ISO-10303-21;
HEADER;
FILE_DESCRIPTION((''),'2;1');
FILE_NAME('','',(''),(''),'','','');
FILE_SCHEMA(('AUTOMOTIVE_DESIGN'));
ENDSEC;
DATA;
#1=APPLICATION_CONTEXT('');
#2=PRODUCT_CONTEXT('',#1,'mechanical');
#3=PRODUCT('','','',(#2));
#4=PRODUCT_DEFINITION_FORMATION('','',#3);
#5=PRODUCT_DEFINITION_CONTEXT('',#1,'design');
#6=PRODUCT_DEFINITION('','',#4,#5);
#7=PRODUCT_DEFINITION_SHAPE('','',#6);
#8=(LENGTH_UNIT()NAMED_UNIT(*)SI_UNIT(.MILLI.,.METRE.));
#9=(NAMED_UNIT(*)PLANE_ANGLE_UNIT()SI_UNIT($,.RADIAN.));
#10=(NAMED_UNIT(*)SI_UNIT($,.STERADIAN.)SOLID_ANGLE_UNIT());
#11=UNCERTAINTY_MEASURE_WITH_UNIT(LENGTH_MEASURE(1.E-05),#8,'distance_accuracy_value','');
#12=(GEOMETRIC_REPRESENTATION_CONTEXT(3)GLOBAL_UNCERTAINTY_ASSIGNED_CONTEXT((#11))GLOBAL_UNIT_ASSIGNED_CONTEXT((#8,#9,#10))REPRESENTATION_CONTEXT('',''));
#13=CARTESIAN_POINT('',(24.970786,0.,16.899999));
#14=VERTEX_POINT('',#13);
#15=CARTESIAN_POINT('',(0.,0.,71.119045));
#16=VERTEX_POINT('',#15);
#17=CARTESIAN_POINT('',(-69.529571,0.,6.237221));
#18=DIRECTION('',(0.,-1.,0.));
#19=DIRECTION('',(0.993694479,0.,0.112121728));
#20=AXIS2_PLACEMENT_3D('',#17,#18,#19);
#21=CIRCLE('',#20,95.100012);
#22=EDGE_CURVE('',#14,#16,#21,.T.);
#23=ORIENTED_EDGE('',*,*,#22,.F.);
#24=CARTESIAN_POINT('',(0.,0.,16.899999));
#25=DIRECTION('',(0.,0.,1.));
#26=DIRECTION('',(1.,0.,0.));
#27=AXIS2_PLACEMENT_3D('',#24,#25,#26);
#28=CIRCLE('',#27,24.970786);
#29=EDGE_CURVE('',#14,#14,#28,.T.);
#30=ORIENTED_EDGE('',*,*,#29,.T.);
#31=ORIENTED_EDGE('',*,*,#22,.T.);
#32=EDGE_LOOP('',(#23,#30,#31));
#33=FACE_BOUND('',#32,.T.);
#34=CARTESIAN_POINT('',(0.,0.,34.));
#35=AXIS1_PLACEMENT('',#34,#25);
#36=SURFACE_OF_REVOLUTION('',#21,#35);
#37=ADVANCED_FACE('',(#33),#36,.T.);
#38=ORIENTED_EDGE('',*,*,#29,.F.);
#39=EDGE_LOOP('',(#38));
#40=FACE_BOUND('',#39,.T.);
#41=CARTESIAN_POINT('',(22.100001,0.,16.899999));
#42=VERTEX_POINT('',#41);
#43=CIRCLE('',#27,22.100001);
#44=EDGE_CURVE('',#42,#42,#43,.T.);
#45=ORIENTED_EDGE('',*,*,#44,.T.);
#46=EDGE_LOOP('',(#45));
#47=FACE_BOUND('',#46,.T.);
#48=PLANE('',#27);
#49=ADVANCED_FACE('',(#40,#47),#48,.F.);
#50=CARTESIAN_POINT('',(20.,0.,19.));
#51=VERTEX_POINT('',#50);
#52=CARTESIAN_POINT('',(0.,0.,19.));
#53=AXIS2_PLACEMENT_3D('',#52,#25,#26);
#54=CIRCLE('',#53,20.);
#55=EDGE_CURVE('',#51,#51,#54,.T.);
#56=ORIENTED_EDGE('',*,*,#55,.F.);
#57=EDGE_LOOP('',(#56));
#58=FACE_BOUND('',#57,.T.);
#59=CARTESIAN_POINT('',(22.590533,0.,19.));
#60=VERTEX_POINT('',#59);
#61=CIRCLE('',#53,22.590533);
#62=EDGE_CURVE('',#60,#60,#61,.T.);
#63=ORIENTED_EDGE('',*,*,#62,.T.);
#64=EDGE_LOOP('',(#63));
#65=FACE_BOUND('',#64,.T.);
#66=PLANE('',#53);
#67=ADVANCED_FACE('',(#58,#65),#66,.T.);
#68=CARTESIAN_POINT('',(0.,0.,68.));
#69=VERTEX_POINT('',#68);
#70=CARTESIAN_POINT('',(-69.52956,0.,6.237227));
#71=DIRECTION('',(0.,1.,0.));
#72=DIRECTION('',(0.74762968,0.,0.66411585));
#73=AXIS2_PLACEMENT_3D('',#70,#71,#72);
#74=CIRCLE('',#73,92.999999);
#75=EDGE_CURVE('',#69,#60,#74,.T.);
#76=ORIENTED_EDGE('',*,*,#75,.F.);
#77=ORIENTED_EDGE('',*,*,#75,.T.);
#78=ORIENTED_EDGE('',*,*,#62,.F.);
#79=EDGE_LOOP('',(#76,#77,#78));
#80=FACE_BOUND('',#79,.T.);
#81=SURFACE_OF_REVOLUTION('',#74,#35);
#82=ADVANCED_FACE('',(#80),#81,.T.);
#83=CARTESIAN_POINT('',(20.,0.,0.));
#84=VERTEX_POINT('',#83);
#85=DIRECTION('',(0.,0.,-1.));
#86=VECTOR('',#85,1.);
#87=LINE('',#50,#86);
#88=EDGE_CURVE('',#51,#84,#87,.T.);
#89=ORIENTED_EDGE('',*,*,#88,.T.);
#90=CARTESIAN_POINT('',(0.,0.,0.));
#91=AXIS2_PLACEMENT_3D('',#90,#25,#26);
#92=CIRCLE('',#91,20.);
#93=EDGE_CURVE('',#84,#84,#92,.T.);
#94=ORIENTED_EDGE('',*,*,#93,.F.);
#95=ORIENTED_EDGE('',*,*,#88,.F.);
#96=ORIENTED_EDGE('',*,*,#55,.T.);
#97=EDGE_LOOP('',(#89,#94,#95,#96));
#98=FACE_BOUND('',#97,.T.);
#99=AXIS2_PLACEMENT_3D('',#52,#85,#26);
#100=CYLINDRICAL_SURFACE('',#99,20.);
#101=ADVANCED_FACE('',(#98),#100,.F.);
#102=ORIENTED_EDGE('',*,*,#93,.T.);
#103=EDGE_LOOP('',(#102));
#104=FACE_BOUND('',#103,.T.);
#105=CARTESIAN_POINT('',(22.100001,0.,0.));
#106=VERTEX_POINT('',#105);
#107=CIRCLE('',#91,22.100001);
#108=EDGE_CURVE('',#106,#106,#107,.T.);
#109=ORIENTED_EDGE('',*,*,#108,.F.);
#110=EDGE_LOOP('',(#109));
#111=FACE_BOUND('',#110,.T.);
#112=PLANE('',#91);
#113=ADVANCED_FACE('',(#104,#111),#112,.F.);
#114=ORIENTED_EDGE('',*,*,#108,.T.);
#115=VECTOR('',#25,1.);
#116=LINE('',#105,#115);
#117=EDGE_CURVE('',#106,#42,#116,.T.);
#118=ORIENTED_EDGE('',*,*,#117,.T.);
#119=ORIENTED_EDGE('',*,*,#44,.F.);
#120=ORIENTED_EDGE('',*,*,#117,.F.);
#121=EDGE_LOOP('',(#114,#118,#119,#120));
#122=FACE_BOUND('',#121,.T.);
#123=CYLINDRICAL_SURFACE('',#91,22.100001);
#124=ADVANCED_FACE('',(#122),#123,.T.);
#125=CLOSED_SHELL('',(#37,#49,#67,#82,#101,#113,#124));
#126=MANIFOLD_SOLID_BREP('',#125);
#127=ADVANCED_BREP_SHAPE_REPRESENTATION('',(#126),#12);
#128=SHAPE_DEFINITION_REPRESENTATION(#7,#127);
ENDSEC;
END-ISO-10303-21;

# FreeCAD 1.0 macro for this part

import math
import FreeCAD as App
import Part
import Sketcher
from FreeCAD import Vector

doc = App.newDocument("Part")
body = doc.addObject("PartDesign::Body", "Body")

# Sketch on XZ plane
sketch1 = body.newObject("Sketcher::SketchObject", "Sketch")
sketch1.AttachmentSupport = (doc.getObject("XZ_Plane"), [""])
sketch1.MapMode = "FlatFace"
sketch1.addGeometry([
    Part.LineSegment(Vector(20, 19, 0), Vector(20, 0, 0)),  # 0
    Part.LineSegment(Vector(20, 0, 0), Vector(22.1, 0, 0)),  # 1
    Part.LineSegment(Vector(22.1, 0, 0), Vector(22.1, 16.9, 0)),  # 2
    Part.LineSegment(Vector(22.1, 16.9, 0), Vector(25, 16.9, 0)),  # 3
    Part.ArcOfCircle(Part.Circle(Vector(-69.5, 6.2, 0), Vector(0, 0, 1), 95.1), math.radians(6), math.radians(43)),  # 4
    Part.LineSegment(Vector(0, 71.1, 0), Vector(0, 68, 0)),  # 5
    Part.ArcOfCircle(Part.Circle(Vector(-69.5, 6.2, 0), Vector(0, 0, 1), 93), math.radians(8), math.radians(42)),  # 6
    Part.LineSegment(Vector(22.6, 19, 0), Vector(20, 19, 0)),  # 7
], False)
sketch1.addConstraint([
    Sketcher.Constraint("Coincident", 0, 2, 1, 1),
    Sketcher.Constraint("Coincident", 1, 2, 2, 1),
    Sketcher.Constraint("Coincident", 2, 2, 3, 1),
    Sketcher.Constraint("Coincident", 3, 2, 4, 1),
    Sketcher.Constraint("Coincident", 4, 2, 5, 1),
    Sketcher.Constraint("Coincident", 5, 2, 6, 2),
    Sketcher.Constraint("Coincident", 6, 1, 7, 1),
    Sketcher.Constraint("Coincident", 7, 2, 0, 1),
    Sketcher.Constraint("Vertical", 0),
    Sketcher.Constraint("Horizontal", 1),
    Sketcher.Constraint("Vertical", 2),
    Sketcher.Constraint("Horizontal", 3),
    Sketcher.Constraint("Vertical", 5),
    Sketcher.Constraint("Horizontal", 7),
    Sketcher.Constraint("PointOnObject", 0, 2, -1),
    Sketcher.Constraint("PointOnObject", 4, 2, -2),
    Sketcher.Constraint("Radius", 6, 92.999999),
    Sketcher.Constraint("DistanceY", 0, 2, 0, 1, 19.0),
    Sketcher.Constraint("DistanceX", 1, 1, 1, 2, 2.100001),
    Sketcher.Constraint("DistanceY", 2, 1, 2, 2, 16.899999),
    Sketcher.Constraint("DistanceX", -1, 1, 0, 2, 20.0),
    Sketcher.Constraint("DistanceY", -1, 1, 5, 2, 68.0),
    Sketcher.Constraint("Radius", 4, 95.100012),
    Sketcher.Constraint("DistanceX", 3, 1, 3, 2, 2.870785),
    Sketcher.Constraint("DistanceX", 7, 2, 7, 1, 2.590533),
    Sketcher.Constraint("DistanceY", 5, 2, 5, 1, 3.119045),
])
revolution = body.newObject("PartDesign::Revolution", "Revolution")
revolution.Profile = sketch1
revolution.ReferenceAxis = (sketch1, ["V_Axis"])
revolution.Angle = 360

doc.recompute()
